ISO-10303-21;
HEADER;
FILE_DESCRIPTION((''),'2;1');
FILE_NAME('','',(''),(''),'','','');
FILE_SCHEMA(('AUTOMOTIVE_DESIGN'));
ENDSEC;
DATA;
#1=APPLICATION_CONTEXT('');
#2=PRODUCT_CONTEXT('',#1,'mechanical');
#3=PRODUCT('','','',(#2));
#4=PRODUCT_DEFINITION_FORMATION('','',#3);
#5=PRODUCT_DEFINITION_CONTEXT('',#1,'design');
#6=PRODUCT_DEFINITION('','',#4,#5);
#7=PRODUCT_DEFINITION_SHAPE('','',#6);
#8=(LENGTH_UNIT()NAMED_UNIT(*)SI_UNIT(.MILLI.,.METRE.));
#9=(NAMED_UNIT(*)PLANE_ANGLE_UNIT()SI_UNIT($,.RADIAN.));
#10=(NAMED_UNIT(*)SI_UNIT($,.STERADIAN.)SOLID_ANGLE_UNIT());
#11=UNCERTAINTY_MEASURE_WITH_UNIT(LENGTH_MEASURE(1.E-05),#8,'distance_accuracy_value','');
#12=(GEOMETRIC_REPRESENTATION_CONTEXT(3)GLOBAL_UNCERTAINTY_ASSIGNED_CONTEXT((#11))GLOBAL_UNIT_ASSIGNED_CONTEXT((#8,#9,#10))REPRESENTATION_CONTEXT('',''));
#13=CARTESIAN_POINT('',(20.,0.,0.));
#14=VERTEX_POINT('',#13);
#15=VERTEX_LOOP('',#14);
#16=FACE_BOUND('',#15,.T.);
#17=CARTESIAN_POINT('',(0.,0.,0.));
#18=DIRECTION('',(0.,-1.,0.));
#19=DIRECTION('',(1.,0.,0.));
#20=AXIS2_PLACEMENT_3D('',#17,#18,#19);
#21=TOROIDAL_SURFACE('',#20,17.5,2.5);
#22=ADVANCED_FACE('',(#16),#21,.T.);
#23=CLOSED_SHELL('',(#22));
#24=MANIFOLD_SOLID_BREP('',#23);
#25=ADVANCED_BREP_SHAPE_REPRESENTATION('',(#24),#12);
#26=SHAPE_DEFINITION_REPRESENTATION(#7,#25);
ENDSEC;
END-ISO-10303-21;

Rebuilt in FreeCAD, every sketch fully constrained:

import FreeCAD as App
import Part
import Sketcher
from FreeCAD import Vector
Q = App.Units.Quantity

doc = App.newDocument("Part")
body = doc.addObject("PartDesign::Body", "Body")

sketch1 = doc.addObject("Sketcher::SketchObject", "Sketch")
body.addObject(sketch1)
sketch1.AttachmentSupport = (doc.XY_Plane, [""])
sketch1.MapMode = "FlatFace"
sketch1.addGeometry(Part.Circle(Vector(-17.5, 0, 0), Vector(0, 0, 1), 2.5), False)
sketch1.addConstraint(Sketcher.Constraint("PointOnObject", 0, 3, -1))
sketch1.addConstraint(Sketcher.Constraint("Diameter", 0, Q("5 mm")))
sketch1.addConstraint(Sketcher.Constraint("DistanceX", 0, 3, -1, 1, Q("17.5 mm")))
revolution = doc.addObject("PartDesign::Revolution", "Revolution")
body.addObject(revolution)
revolution.Profile = sketch1
revolution.ReferenceAxis = (sketch1, ["V_Axis"])
revolution.Angle = 360

doc.recompute()
